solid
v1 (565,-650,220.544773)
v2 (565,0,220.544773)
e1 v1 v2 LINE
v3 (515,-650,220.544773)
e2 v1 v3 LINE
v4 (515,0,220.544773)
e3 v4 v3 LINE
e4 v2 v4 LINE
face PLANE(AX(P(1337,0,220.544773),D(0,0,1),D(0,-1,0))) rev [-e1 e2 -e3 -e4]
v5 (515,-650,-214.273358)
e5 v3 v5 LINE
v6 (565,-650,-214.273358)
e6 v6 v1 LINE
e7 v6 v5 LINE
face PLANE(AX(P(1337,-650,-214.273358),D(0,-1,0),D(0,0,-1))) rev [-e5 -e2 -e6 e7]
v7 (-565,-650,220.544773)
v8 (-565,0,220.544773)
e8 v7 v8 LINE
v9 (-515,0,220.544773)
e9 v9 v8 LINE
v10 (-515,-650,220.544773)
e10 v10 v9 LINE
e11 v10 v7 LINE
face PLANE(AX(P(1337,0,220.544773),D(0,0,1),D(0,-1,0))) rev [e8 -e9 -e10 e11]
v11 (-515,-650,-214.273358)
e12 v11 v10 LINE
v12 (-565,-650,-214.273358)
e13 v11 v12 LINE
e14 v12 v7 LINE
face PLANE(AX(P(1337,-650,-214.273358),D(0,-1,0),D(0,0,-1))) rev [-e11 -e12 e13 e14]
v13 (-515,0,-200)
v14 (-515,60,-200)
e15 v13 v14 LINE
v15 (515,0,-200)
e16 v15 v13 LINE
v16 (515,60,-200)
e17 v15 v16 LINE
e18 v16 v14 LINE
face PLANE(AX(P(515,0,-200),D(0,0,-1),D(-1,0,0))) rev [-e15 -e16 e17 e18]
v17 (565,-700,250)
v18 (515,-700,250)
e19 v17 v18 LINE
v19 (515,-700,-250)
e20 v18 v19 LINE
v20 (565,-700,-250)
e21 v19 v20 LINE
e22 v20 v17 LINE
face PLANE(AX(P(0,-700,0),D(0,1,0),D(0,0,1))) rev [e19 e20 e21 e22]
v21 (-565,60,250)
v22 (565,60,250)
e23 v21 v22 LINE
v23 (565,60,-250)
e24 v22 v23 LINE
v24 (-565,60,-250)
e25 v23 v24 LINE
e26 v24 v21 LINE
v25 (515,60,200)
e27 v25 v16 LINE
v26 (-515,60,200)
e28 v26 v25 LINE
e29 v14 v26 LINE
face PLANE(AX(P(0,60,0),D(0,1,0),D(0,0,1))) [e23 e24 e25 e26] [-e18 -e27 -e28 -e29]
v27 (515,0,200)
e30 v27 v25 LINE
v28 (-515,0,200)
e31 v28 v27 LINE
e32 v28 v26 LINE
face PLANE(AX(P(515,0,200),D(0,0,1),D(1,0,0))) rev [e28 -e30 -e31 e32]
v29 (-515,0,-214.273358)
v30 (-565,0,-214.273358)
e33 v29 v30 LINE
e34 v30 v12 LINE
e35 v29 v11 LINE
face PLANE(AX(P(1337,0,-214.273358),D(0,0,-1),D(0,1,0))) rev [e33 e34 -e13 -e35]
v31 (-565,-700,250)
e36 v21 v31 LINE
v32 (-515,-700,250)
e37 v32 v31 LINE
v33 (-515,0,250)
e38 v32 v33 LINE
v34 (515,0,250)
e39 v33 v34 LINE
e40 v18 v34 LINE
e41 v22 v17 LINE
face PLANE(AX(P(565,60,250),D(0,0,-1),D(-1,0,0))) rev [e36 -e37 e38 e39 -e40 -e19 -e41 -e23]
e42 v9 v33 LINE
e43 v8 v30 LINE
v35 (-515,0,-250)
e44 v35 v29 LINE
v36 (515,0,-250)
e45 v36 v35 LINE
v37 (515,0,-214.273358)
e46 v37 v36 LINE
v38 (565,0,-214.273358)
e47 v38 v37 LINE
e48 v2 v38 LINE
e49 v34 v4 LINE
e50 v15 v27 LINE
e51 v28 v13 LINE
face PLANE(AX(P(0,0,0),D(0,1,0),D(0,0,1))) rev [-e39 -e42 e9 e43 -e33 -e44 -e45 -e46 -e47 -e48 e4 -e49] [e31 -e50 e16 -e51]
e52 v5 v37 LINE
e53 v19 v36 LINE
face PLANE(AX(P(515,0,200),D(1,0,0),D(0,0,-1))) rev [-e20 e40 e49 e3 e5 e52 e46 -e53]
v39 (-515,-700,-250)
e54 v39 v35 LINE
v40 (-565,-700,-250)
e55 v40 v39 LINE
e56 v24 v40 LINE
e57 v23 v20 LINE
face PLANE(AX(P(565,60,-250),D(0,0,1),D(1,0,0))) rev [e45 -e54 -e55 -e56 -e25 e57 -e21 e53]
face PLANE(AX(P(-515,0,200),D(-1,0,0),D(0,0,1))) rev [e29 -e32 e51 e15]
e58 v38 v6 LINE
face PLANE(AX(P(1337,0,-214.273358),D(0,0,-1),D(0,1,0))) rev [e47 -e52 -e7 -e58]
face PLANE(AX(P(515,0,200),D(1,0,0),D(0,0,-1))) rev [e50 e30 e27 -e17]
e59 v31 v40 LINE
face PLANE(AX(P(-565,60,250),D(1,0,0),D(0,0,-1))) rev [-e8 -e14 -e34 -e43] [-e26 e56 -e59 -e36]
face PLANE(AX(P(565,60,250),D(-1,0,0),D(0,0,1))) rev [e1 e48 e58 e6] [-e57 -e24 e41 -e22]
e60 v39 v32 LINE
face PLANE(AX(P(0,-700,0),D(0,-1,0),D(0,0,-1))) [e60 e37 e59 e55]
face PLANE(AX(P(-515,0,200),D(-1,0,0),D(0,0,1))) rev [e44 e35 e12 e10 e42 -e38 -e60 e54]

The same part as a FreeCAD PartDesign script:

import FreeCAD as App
import Part
import Sketcher
from FreeCAD import Vector


def add_polygon(sketch, points):
    """Adds a closed chain of lines whose ends are joined by coincident constraints."""
    first, n = sketch.GeometryCount, len(points)
    for a, b in zip(points, points[1:] + points[:1]):
        sketch.addGeometry(Part.LineSegment(App.Vector(*a, 0), App.Vector(*b, 0)), False)
    for i in range(n):
        sketch.addConstraint(Sketcher.Constraint("Coincident", first + i, 2, first + (i + 1) % n, 1))

doc = App.newDocument("Part")
body = doc.addObject("PartDesign::Body", "Body")

# Sketch on XZ plane
sketch1 = body.newObject("Sketcher::SketchObject", "Sketch")
sketch1.AttachmentSupport = (doc.getObject("XZ_Plane"), [""])
sketch1.MapMode = "FlatFace"
add_polygon(sketch1, [(-565, -250), (-565, 250), (565, 250), (565, -250)])  # lines 0-3
sketch1.addConstraint([
    Sketcher.Constraint("Vertical", 0),
    Sketcher.Constraint("Horizontal", 1),
    Sketcher.Constraint("Vertical", 2),
    Sketcher.Constraint("Horizontal", 3),
    Sketcher.Constraint("Symmetric", 0, 2, 2, 2, -1, 1),
    Sketcher.Constraint("DistanceX", 1, 1, 1, 2, 1130.0),
    Sketcher.Constraint("DistanceY", 0, 1, 0, 2, 500.0),
])
pad1 = body.newObject("PartDesign::Pad", "Pad")
pad1.Profile = sketch1
pad1.Length = 60
pad1.Reversed = True

# Sketch on XZ plane
sketch2 = body.newObject("Sketcher::SketchObject", "Sketch001")
sketch2.AttachmentSupport = (doc.getObject("XZ_Plane"), [""])
sketch2.MapMode = "FlatFace"
sketch2.AttachmentOffset = App.Placement(Vector(0, 0, -60), App.Rotation())
add_polygon(sketch2, [(-515, -200), (-515, 200), (515, 200), (515, -200)])  # lines 0-3
sketch2.addConstraint([
    Sketcher.Constraint("Vertical", 0),
    Sketcher.Constraint("Horizontal", 1),
    Sketcher.Constraint("Vertical", 2),
    Sketcher.Constraint("Horizontal", 3),
    Sketcher.Constraint("Symmetric", 0, 2, 2, 2, -1, 1),
    Sketcher.Constraint("DistanceX", 1, 1, 1, 2, 1030.0),
    Sketcher.Constraint("DistanceY", 0, 1, 0, 2, 400.0),
])
pocket1 = body.newObject("PartDesign::Pocket", "Pocket")
pocket1.Profile = sketch2
pocket1.Length = 60
pocket1.Reversed = True

# Sketch on XZ plane
sketch3 = body.newObject("Sketcher::SketchObject", "Sketch002")
sketch3.AttachmentSupport = (doc.getObject("XZ_Plane"), [""])
sketch3.MapMode = "FlatFace"
add_polygon(sketch3, [(-515, -250), (-515, 250), (-565, 250), (-565, -250)])  # lines 0-3
add_polygon(sketch3, [(565, -250), (565, 250), (515, 250), (515, -250)])  # lines 4-7
sketch3.addConstraint([
    Sketcher.Constraint("Vertical", 0),
    Sketcher.Constraint("Horizontal", 1),
    Sketcher.Constraint("Vertical", 2),
    Sketcher.Constraint("Horizontal", 3),
    Sketcher.Constraint("Vertical", 4),
    Sketcher.Constraint("Horizontal", 5),
    Sketcher.Constraint("Vertical", 6),
    Sketcher.Constraint("Horizontal", 7),
    Sketcher.Constraint("Symmetric", 2, 2, 4, 2, -1, 1),
    Sketcher.Constraint("Symmetric", 0, 2, 6, 2, -1, 1),
    Sketcher.Constraint("Horizontal", 1, 2, 4, 2),
    Sketcher.Constraint("DistanceX", 1, 2, 1, 1, 50.0),
    Sketcher.Constraint("DistanceY", 0, 1, 0, 2, 500.0),
    Sketcher.Constraint("DistanceX", 0, 2, -1, 1, 515.0),
])
pad2 = body.newObject("PartDesign::Pad", "Pad001")
pad2.Profile = sketch3
pad2.Length = 700

# Sketch on YZ plane
sketch4 = body.newObject("Sketcher::SketchObject", "Sketch003")
sketch4.AttachmentSupport = (doc.getObject("YZ_Plane"), [""])
sketch4.MapMode = "FlatFace"
sketch4.AttachmentOffset = App.Placement(Vector(0, 0, -565), App.Rotation())
add_polygon(sketch4, [(0, -214.273358), (-650, -214.273358), (-650, 220.544773), (0, 220.544773)])  # lines 0-3
sketch4.addConstraint([
    Sketcher.Constraint("Horizontal", 0),
    Sketcher.Constraint("Vertical", 1),
    Sketcher.Constraint("Horizontal", 2),
    Sketcher.Constraint("Vertical", 3),
    Sketcher.Constraint("PointOnObject", 2, 2, -2),
    Sketcher.Constraint("DistanceX", 0, 2, 0, 1, 650.0),
    Sketcher.Constraint("DistanceY", 1, 1, 1, 2, 434.818131),
    Sketcher.Constraint("DistanceY", 0, 2, -1, 1, 214.273358),
])
pocket2 = body.newObject("PartDesign::Pocket", "Pocket001")
pocket2.Profile = sketch4
pocket2.Length = 1902
pocket2.Reversed = True

doc.recompute()
